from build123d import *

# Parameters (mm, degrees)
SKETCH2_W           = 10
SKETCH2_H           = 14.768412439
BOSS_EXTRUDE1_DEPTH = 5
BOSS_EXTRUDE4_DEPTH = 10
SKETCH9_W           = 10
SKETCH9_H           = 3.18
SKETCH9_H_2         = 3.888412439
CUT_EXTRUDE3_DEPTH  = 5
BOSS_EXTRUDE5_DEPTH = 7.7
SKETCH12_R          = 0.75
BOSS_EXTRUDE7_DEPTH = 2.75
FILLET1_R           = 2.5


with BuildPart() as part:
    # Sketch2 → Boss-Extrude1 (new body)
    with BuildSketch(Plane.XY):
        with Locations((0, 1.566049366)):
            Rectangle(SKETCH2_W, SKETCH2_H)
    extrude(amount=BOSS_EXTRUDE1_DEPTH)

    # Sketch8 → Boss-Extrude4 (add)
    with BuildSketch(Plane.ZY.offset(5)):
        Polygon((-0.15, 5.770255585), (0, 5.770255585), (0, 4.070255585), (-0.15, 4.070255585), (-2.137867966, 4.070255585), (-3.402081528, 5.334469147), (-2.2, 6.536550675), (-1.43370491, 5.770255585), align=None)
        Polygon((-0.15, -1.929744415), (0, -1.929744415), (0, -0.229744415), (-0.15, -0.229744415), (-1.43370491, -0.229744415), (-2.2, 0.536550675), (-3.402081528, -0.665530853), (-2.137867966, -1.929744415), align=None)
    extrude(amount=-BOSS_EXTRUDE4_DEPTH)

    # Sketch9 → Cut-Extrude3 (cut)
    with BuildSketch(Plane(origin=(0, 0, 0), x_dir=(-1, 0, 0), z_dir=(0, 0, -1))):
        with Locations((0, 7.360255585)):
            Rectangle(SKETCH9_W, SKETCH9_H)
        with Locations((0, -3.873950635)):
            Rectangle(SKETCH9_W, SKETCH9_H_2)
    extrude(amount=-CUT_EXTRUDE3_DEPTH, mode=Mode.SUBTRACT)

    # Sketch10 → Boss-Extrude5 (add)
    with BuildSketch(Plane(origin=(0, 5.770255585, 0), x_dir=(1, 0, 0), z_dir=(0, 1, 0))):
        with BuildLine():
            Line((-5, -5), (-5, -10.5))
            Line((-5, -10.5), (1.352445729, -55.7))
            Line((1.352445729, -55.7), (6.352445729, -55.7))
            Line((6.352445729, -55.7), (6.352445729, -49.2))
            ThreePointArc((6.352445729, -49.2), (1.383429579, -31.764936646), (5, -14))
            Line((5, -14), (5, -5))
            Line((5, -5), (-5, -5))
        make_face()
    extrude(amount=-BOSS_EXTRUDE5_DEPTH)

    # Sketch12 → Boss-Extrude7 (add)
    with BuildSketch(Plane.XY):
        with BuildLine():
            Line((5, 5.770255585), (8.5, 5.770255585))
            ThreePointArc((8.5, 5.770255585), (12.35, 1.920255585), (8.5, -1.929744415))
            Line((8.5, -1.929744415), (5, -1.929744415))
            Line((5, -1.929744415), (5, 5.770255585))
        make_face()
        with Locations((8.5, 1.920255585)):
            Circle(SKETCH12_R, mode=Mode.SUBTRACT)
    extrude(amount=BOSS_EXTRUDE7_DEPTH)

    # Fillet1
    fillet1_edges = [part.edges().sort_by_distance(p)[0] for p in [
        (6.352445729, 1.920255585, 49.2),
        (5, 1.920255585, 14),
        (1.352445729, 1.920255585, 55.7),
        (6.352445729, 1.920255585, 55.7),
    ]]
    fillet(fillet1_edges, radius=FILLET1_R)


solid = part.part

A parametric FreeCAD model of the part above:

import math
import FreeCAD as App
import Part
import Sketcher

V = App.Vector
Q = App.Units.Quantity


def edges_at(feature, points):
    """Names of the edges that pass closest to the given points."""
    edges = feature.Shape.Edges
    near = lambda p: min(range(len(edges)), key=lambda i: edges[i].distToShape(Part.Vertex(*p))[0])
    return sorted({f"Edge{near(p) + 1}" for p in points})


def add_polygon(sketch, points):
    """Adds a closed chain of lines whose ends are joined by coincident constraints."""
    first, n = sketch.GeometryCount, len(points)
    for a, b in zip(points, points[1:] + points[:1]):
        sketch.addGeometry(Part.LineSegment(App.Vector(*a, 0), App.Vector(*b, 0)), False)
    for i in range(n):
        sketch.addConstraint(Sketcher.Constraint("Coincident", first + i, 2, first + (i + 1) % n, 1))

doc = App.newDocument("Part")
body = doc.addObject("PartDesign::Body", "Body")

sketch1 = body.newObject("Sketcher::SketchObject", "Sketch")
sketch1.AttachmentSupport = (doc.getObject("XY_Plane"), [""])
sketch1.MapMode = "FlatFace"
add_polygon(sketch1, [(-5, 9), (-5, -6), (5, -6), (5, 9)])
sketch1.addConstraint([
    Sketcher.Constraint("Vertical", 0),
    Sketcher.Constraint("Horizontal", 1),
    Sketcher.Constraint("Vertical", 2),
    Sketcher.Constraint("Horizontal", 3),
    Sketcher.Constraint("DistanceX", 1, 1, 1, 2, 10.0),
    Sketcher.Constraint("DistanceX", 0, 2, -1, 1, 5.0),
    Sketcher.Constraint("DistanceY", 0, 2, 0, 1, 14.768412),
    Sketcher.Constraint("DistanceY", 0, 2, -1, 1, 5.818157),
])
pad1 = body.newObject("PartDesign::Pad", "Pad")
pad1.Profile = sketch1
pad1.Length = 5

sketch2 = body.newObject("Sketcher::SketchObject", "Sketch001")
sketch2.AttachmentSupport = (doc.getObject("YZ_Plane"), [""])
sketch2.MapMode = "FlatFace"
sketch2.AttachmentOffset = App.Placement(V(0, 0, -5), App.Rotation())
add_polygon(sketch2, [(5.8, 0), (5.8, -1.4), (6.5, -2.2), (5.3, -3.4), (4.1, -2.1), (4.1, 0)])
add_polygon(sketch2, [(-1.9, 0), (-0.2, 0), (-0.2, -1.4), (0.5, -2.2), (-0.7, -3.4), (-1.9, -2.1)])
sketch2.addConstraint([
    Sketcher.Constraint("Vertical", 0),
    Sketcher.Constraint("Vertical", 4),
    Sketcher.Constraint("Horizontal", 5),
    Sketcher.Constraint("Horizontal", 6),
    Sketcher.Constraint("Vertical", 7),
    Sketcher.Constraint("Vertical", 11),
    Sketcher.Constraint("PointOnObject", 4, 2, -1),
    Sketcher.Constraint("PointOnObject", 6, 2, -1),
    Sketcher.Constraint("Perpendicular", 1, 2),
    Sketcher.Constraint("Perpendicular", 2, 3),
    Sketcher.Constraint("Parallel", 3, 8),
    Sketcher.Constraint("Perpendicular", 8, 9),
    Sketcher.Constraint("Perpendicular", 9, 10),
    Sketcher.Constraint("Horizontal", 0, 2, 7, 2),
    Sketcher.Constraint("Horizontal", 1, 2, 8, 2),
    Sketcher.Constraint("Horizontal", 2, 2, 9, 2),
    Sketcher.Constraint("Horizontal", 3, 2, 10, 2),
    Sketcher.Constraint("Angle", 1, Q("-45 deg")),
    Sketcher.Constraint("DistanceX", 5, 1, 5, 2, 1.7),
    Sketcher.Constraint("DistanceX", 6, 2, 5, 2, 6.0),
    Sketcher.Constraint("Distance", 2, 1.7),
    Sketcher.Constraint("DistanceY", 1, 2, -1, 1, 2.2),
    Sketcher.Constraint("DistanceY", 0, 2, 0, 1, 1.433705),
    Sketcher.Constraint("DistanceX", -1, 1, 1, 2, 6.536551),
])
pad2 = body.newObject("PartDesign::Pad", "Pad001")
pad2.Profile = sketch2
pad2.Length = 10

sketch3 = body.newObject("Sketcher::SketchObject", "Sketch002")
sketch3.AttachmentSupport = (doc.getObject("XY_Plane"), [""])
sketch3.MapMode = "FlatFace"
add_polygon(sketch3, [(5, 9), (5, 5.8), (-5, 5.8), (-5, 9)])
add_polygon(sketch3, [(5, -1.9), (5, -5.8), (-5, -5.8), (-5, -1.9)])
sketch3.addConstraint([
    Sketcher.Constraint("Vertical", 0),
    Sketcher.Constraint("Horizontal", 1),
    Sketcher.Constraint("Vertical", 2),
    Sketcher.Constraint("Horizontal", 3),
    Sketcher.Constraint("Vertical", 4),
    Sketcher.Constraint("Horizontal", 5),
    Sketcher.Constraint("Vertical", 6),
    Sketcher.Constraint("Horizontal", 7),
    Sketcher.Constraint("Vertical", 3, 2, 4, 2),
    Sketcher.Constraint("Vertical", 2, 2, 5, 2),
    Sketcher.Constraint("DistanceX", 1, 2, 1, 1, 10.0),
    Sketcher.Constraint("DistanceX", -1, 1, 0, 2, 5.0),
    Sketcher.Constraint("DistanceY", 0, 2, 0, 1, 3.18),
    Sketcher.Constraint("DistanceY", 6, 2, 1, 2, 7.7),
    Sketcher.Constraint("DistanceY", 4, 2, 4, 1, 3.888412),
    Sketcher.Constraint("DistanceY", -1, 1, 0, 2, 5.770256),
])
pocket1 = body.newObject("PartDesign::Pocket", "Pocket")
pocket1.Profile = sketch3
pocket1.Length = 5
pocket1.Reversed = True

sketch4 = body.newObject("Sketcher::SketchObject", "Sketch003")
sketch4.AttachmentSupport = (doc.getObject("XZ_Plane"), [""])
sketch4.MapMode = "FlatFace"
sketch4.AttachmentOffset = App.Placement(V(0, 0, -5.770256), App.Rotation())
sketch4.addGeometry([
    Part.LineSegment(V(-5, 5, 0), V(-5, 10, 0)),
    Part.LineSegment(V(-5, 10, 0), V(1, 56, 0)),
    Part.LineSegment(V(1, 56, 0), V(6, 56, 0)),
    Part.LineSegment(V(6, 56, 0), V(6, 49, 0)),
    Part.ArcOfCircle(Part.Circle(V(40, 30, 0), V(0, 0, 1), 38), math.radians(150), math.radians(205)),
    Part.LineSegment(V(5, 14, 0), V(5, 5, 0)),
    Part.LineSegment(V(5, 5, 0), V(-5, 5, 0)),
], False)
sketch4.addConstraint([
    Sketcher.Constraint("Coincident", 0, 2, 1, 1),
    Sketcher.Constraint("Coincident", 1, 2, 2, 1),
    Sketcher.Constraint("Coincident", 2, 2, 3, 1),
    Sketcher.Constraint("Coincident", 3, 2, 4, 1),
    Sketcher.Constraint("Coincident", 4, 2, 5, 1),
    Sketcher.Constraint("Coincident", 5, 2, 6, 1),
    Sketcher.Constraint("Coincident", 6, 2, 0, 1),
    Sketcher.Constraint("Vertical", 0),
    Sketcher.Constraint("Horizontal", 2),
    Sketcher.Constraint("Vertical", 3),
    Sketcher.Constraint("Vertical", 5),
    Sketcher.Constraint("Horizontal", 6),
    Sketcher.Constraint("DistanceX", 2, 1, 2, 2, 5.0),
    Sketcher.Constraint("DistanceX", 6, 2, 6, 1, 10.0),
    Sketcher.Constraint("DistanceY", 5, 2, 5, 1, 9.0),
    Sketcher.Constraint("Angle", 1, Q("82 deg")),
    Sketcher.Constraint("DistanceY", 0, 1, 0, 2, 5.5),
    Sketcher.Constraint("DistanceY", 3, 2, 3, 1, 6.5),
    Sketcher.Constraint("DistanceX", 0, 2, -1, 1, 5.0),
    Sketcher.Constraint("DistanceY", -1, 1, 4, 2, 14.0),
    Sketcher.Constraint("DistanceY", -1, 1, 1, 2, 55.7),
    Sketcher.Constraint("Radius", 4, 38.253674),
])
pad3 = body.newObject("PartDesign::Pad", "Pad002")
pad3.Profile = sketch4
pad3.Length = 7.7

sketch5 = body.newObject("Sketcher::SketchObject", "Sketch004")
sketch5.AttachmentSupport = (doc.getObject("XY_Plane"), [""])
sketch5.MapMode = "FlatFace"
sketch5.addGeometry([
    Part.LineSegment(V(8.5, 5.8, 0), V(5, 5.8, 0)),
    Part.LineSegment(V(5, 5.8, 0), V(5, -1.9, 0)),
    Part.LineSegment(V(5, -1.9, 0), V(8.5, -1.9, 0)),
    Part.ArcOfCircle(Part.Circle(V(8.5, 1.9, 0), V(0, 0, 1), 3.9), math.radians(-90), math.radians(90)),
    Part.Circle(V(8.5, 1.9, 0), V(0, 0, 1), 0.8),
], False)
sketch5.addConstraint([
    Sketcher.Constraint("Coincident", 0, 2, 1, 1),
    Sketcher.Constraint("Coincident", 1, 2, 2, 1),
    Sketcher.Constraint("Tangent", 2, 2, 3, 1),
    Sketcher.Constraint("Tangent", 3, 2, 0, 1),
    Sketcher.Constraint("Horizontal", 0),
    Sketcher.Constraint("Vertical", 1),
    Sketcher.Constraint("Horizontal", 2),
    Sketcher.Constraint("Coincident", 4, 3, 3, 3),
    Sketcher.Constraint("Diameter", 4, 1.5),
    Sketcher.Constraint("Radius", 3, 3.85),
    Sketcher.Constraint("DistanceX", 0, 2, 0, 1, 3.5),
    Sketcher.Constraint("DistanceX", -1, 1, 0, 2, 5.0),
    Sketcher.Constraint("DistanceY", -1, 1, 3, 3, 1.920256),
])
pad4 = body.newObject("PartDesign::Pad", "Pad003")
pad4.Profile = sketch5
pad4.Length = 2.75
doc.recompute()

fillet = body.newObject("PartDesign::Fillet", "Fillet")
fillet.Base = (pad4, edges_at(pad4, [
    (6.352, 1.92, 49.2),
    (5, 1.92, 14),
    (1.352, 1.92, 55.7),
    (6.352, 1.92, 55.7),
]))
fillet.Radius = 2.5

doc.recompute()
